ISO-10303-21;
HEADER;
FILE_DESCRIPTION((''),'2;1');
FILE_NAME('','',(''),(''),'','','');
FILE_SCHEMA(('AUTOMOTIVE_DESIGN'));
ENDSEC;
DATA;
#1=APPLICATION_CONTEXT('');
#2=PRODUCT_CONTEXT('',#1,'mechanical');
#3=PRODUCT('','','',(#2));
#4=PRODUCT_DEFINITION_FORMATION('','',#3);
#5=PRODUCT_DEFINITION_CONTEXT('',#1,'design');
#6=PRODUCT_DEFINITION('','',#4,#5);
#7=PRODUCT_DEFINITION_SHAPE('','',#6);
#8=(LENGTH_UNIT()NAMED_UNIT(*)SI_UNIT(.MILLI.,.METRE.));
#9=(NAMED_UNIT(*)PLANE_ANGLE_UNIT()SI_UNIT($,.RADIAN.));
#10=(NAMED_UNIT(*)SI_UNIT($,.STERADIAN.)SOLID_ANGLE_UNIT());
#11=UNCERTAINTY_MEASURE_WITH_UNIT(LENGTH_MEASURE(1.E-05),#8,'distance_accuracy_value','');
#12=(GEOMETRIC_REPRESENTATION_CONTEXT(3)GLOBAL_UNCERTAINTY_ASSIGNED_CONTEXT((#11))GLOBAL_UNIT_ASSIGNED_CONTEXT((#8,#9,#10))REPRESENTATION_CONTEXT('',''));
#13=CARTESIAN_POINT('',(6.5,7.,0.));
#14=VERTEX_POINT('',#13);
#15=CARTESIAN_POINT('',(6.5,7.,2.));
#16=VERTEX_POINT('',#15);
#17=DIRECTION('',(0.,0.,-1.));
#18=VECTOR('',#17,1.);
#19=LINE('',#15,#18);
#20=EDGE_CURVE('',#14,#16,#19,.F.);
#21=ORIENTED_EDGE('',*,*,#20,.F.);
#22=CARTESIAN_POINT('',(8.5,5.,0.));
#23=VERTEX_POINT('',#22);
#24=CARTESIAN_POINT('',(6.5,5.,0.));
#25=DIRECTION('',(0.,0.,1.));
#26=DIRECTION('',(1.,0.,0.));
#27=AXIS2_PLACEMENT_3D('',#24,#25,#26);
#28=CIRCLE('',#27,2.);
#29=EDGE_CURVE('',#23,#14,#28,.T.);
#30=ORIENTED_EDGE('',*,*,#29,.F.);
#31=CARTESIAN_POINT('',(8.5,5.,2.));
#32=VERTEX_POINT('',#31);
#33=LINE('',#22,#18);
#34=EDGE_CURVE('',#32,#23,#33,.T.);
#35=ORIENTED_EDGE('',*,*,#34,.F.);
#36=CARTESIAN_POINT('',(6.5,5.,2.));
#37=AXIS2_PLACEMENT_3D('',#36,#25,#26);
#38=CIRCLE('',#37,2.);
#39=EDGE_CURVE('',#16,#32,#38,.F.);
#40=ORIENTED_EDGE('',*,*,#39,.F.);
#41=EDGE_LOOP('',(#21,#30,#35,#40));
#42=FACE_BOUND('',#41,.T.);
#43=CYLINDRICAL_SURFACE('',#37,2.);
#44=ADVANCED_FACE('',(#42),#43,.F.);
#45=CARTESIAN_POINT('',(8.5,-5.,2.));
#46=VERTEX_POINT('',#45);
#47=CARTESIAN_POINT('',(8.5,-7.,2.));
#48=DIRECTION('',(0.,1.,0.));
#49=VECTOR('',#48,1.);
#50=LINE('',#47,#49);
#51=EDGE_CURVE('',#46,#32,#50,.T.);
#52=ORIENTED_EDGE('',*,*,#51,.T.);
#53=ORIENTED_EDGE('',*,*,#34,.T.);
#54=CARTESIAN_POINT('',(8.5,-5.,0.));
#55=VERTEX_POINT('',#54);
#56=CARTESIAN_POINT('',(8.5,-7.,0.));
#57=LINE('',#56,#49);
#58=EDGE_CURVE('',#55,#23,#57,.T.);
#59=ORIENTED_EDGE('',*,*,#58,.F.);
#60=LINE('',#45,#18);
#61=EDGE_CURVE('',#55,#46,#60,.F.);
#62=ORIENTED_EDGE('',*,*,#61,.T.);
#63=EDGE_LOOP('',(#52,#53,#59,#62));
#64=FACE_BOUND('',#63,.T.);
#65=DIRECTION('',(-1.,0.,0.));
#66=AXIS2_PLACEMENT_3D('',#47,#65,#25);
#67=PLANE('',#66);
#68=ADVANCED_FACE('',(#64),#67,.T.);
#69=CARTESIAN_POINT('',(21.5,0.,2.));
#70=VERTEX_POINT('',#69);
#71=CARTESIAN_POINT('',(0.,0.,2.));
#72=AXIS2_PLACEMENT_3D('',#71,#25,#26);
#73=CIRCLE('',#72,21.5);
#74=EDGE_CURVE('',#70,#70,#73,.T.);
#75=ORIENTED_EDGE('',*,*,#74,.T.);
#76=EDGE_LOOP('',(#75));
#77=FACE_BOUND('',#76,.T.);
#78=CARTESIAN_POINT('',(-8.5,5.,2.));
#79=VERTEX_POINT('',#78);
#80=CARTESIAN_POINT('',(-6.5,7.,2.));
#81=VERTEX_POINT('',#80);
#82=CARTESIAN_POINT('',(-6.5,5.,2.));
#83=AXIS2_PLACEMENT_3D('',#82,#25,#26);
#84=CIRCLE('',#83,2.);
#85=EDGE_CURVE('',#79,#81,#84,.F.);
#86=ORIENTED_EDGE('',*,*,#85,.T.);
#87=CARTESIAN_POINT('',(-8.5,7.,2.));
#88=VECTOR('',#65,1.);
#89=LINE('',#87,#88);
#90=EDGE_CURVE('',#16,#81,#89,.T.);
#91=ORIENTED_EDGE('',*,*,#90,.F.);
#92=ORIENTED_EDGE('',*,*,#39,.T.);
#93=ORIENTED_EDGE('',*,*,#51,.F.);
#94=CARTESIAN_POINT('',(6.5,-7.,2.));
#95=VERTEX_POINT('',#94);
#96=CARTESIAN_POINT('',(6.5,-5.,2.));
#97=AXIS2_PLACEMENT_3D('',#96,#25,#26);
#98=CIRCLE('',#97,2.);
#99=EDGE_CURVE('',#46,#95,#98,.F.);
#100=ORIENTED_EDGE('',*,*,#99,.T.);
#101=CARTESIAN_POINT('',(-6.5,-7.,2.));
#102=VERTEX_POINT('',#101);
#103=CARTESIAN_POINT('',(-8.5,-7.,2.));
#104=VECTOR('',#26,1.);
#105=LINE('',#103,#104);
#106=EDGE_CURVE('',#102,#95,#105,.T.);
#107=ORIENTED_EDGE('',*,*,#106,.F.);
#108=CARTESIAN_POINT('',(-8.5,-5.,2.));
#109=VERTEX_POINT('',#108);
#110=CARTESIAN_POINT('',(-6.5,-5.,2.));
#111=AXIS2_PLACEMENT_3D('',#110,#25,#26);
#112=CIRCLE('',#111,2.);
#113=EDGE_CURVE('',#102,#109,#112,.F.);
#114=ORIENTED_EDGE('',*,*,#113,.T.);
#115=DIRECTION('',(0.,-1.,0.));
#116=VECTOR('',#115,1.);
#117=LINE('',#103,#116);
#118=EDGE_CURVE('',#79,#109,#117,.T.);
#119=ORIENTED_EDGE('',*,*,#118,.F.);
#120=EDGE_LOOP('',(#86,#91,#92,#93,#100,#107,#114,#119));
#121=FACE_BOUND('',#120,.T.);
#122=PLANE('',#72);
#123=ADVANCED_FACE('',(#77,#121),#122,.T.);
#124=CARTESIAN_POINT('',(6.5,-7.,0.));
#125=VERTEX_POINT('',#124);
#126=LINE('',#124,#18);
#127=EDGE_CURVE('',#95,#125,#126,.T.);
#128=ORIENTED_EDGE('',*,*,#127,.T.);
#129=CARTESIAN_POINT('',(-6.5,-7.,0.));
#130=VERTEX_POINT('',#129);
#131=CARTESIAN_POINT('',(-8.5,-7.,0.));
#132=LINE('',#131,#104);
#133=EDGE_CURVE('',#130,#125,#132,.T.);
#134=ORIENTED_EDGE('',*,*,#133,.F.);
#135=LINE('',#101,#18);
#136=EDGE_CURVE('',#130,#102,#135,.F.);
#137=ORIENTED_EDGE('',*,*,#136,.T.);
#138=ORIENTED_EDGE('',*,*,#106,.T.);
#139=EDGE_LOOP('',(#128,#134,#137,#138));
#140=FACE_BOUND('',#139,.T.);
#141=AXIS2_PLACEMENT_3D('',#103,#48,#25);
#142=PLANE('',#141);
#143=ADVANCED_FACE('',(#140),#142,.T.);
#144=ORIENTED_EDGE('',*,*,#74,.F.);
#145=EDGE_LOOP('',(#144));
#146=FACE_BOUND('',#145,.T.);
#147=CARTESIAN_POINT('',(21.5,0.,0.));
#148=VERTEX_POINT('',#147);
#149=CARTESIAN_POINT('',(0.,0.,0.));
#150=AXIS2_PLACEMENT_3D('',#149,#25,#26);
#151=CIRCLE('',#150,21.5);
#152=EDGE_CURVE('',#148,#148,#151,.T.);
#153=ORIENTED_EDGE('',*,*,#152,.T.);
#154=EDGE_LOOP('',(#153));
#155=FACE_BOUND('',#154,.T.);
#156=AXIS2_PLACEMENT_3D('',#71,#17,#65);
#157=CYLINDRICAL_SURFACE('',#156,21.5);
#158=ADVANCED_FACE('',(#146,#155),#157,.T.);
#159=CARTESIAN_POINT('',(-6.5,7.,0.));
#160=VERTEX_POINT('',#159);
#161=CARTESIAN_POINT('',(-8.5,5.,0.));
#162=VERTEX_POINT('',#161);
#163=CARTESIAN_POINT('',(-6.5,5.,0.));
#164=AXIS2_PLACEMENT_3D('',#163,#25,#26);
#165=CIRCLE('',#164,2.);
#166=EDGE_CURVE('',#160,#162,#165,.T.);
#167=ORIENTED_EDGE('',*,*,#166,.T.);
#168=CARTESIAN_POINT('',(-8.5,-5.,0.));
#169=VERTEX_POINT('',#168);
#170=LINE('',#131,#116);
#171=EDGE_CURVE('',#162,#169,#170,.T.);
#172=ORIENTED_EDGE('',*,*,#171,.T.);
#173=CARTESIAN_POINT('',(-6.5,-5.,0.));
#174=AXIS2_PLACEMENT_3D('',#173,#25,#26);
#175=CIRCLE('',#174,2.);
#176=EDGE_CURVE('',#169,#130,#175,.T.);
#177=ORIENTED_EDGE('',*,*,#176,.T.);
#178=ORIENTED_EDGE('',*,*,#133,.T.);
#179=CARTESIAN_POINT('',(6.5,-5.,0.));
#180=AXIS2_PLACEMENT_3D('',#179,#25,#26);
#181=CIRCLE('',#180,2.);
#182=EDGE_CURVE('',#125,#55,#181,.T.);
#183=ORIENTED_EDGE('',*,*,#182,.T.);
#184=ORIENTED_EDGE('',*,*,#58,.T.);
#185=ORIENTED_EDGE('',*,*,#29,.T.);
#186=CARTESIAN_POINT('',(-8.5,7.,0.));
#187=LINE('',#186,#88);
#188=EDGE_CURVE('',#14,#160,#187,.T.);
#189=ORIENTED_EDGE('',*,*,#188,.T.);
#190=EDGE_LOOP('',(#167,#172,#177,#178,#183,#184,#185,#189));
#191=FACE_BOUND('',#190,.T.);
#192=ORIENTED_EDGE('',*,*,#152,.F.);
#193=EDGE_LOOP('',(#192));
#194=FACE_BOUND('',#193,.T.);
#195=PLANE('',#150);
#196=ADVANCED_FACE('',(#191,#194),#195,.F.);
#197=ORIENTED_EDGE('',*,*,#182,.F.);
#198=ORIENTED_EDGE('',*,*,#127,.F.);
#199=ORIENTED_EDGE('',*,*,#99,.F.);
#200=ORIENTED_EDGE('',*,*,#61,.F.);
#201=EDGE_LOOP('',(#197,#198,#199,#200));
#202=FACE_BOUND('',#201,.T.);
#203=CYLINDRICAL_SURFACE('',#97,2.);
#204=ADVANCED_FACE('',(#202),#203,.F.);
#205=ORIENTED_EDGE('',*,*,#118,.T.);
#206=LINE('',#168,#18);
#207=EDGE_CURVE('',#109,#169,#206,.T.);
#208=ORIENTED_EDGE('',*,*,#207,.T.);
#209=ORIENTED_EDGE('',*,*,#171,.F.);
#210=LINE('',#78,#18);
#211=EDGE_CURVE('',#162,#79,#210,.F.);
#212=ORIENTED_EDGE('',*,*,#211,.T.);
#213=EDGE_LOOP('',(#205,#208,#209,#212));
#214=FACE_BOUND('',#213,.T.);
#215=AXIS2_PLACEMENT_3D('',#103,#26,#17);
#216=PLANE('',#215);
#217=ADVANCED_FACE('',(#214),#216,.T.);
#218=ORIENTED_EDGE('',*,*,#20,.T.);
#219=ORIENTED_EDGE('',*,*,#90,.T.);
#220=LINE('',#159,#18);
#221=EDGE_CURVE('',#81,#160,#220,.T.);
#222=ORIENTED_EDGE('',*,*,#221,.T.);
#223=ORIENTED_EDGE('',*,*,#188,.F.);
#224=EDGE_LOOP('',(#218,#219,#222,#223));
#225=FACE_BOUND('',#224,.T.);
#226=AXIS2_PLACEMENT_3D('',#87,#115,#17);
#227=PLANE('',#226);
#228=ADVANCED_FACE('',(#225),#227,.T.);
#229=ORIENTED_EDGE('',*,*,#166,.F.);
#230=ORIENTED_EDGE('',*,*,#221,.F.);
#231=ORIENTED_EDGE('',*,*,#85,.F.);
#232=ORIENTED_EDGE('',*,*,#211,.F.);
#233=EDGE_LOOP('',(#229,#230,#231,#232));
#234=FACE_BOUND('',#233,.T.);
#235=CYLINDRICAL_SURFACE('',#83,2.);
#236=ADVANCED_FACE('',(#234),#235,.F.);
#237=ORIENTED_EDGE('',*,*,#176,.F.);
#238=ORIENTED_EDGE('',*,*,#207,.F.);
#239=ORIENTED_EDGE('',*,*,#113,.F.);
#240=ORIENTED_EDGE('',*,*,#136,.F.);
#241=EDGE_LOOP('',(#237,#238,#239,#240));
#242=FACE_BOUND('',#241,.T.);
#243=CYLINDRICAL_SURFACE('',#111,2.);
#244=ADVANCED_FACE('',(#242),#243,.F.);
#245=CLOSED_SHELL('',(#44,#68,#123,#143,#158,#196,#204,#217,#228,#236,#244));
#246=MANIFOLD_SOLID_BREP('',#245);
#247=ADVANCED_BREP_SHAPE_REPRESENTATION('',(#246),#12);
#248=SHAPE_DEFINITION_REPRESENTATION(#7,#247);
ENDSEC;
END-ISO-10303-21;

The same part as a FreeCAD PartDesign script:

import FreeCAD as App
import Part
import Sketcher

V = App.Vector
Q = App.Units.Quantity


def edges_at(feature, points):
    """Names of the edges that pass closest to the given points."""
    edges = feature.Shape.Edges
    near = lambda p: min(range(len(edges)), key=lambda i: edges[i].distToShape(Part.Vertex(*p))[0])
    return sorted({f"Edge{near(p) + 1}" for p in points})

doc = App.newDocument("Part")
params = doc.addObject("Spreadsheet::Sheet", "Params")
for row, (alias, value) in enumerate([
    ("sketch1_diameter", "43 mm"),
    ("sketch1_width", "17 mm"),
    ("sketch1_height", "14 mm"),
    ("pad1_length", "2 mm"),
    ("fillet_radius", "2 mm"),
], start=1):
    params.set(f"A{row}", alias)
    params.set(f"B{row}", "=" + value)
    params.setAlias(f"B{row}", alias)

body = doc.addObject("PartDesign::Body", "Body")

# Sketch on XY plane
sketch1 = doc.addObject("Sketcher::SketchObject", "Sketch")
body.addObject(sketch1)
sketch1.AttachmentSupport = (doc.XY_Plane, [""])
sketch1.MapMode = "FlatFace"
sketch1.addGeometry([
    Part.Circle(V(0, 0, 0), V(0, 0, 1), 22),  # 0
    Part.LineSegment(V(8, -7, 0), V(-8, -7, 0)),  # 1
    Part.LineSegment(V(-8, -7, 0), V(-8, 7, 0)),  # 2
    Part.LineSegment(V(-8, 7, 0), V(8, 7, 0)),  # 3
    Part.LineSegment(V(8, 7, 0), V(8, -7, 0)),  # 4
], False)
sketch1.addConstraint([
    Sketcher.Constraint("Coincident", 1, 2, 2, 1),
    Sketcher.Constraint("Coincident", 2, 2, 3, 1),
    Sketcher.Constraint("Coincident", 3, 2, 4, 1),
    Sketcher.Constraint("Coincident", 4, 2, 1, 1),
    Sketcher.Constraint("Horizontal", 1),
    Sketcher.Constraint("Vertical", 2),
    Sketcher.Constraint("Horizontal", 3),
    Sketcher.Constraint("Vertical", 4),
    Sketcher.Constraint("Coincident", 0, 3, -1, 1),
    Sketcher.Constraint("Symmetric", 1, 2, 3, 2, -1, 1),
    Sketcher.Constraint("Diameter", 0, Q("43 mm")),
    Sketcher.Constraint("DistanceX", 1, 2, 1, 1, Q("17 mm")),
    Sketcher.Constraint("DistanceY", 2, 1, 2, 2, Q("14 mm")),
])
sketch1.setExpression("Constraints[10]", "Params.sketch1_diameter")
sketch1.setExpression("Constraints[11]", "Params.sketch1_width")
sketch1.setExpression("Constraints[12]", "Params.sketch1_height")
pad1 = doc.addObject("PartDesign::Pad", "Pad")
body.addObject(pad1)
pad1.Profile = sketch1
pad1.setExpression("Length", "Params.pad1_length")
doc.recompute()

fillet = doc.addObject("PartDesign::Fillet", "Fillet")
body.addObject(fillet)
fillet.Base = (pad1, edges_at(pad1, [
    (8.5, -7, 1),
    (8.5, 7, 1),
    (-8.5, 7, 1),
    (-8.5, -7, 1),
]))
fillet.setExpression("Radius", "Params.fillet_radius")

doc.recompute()
